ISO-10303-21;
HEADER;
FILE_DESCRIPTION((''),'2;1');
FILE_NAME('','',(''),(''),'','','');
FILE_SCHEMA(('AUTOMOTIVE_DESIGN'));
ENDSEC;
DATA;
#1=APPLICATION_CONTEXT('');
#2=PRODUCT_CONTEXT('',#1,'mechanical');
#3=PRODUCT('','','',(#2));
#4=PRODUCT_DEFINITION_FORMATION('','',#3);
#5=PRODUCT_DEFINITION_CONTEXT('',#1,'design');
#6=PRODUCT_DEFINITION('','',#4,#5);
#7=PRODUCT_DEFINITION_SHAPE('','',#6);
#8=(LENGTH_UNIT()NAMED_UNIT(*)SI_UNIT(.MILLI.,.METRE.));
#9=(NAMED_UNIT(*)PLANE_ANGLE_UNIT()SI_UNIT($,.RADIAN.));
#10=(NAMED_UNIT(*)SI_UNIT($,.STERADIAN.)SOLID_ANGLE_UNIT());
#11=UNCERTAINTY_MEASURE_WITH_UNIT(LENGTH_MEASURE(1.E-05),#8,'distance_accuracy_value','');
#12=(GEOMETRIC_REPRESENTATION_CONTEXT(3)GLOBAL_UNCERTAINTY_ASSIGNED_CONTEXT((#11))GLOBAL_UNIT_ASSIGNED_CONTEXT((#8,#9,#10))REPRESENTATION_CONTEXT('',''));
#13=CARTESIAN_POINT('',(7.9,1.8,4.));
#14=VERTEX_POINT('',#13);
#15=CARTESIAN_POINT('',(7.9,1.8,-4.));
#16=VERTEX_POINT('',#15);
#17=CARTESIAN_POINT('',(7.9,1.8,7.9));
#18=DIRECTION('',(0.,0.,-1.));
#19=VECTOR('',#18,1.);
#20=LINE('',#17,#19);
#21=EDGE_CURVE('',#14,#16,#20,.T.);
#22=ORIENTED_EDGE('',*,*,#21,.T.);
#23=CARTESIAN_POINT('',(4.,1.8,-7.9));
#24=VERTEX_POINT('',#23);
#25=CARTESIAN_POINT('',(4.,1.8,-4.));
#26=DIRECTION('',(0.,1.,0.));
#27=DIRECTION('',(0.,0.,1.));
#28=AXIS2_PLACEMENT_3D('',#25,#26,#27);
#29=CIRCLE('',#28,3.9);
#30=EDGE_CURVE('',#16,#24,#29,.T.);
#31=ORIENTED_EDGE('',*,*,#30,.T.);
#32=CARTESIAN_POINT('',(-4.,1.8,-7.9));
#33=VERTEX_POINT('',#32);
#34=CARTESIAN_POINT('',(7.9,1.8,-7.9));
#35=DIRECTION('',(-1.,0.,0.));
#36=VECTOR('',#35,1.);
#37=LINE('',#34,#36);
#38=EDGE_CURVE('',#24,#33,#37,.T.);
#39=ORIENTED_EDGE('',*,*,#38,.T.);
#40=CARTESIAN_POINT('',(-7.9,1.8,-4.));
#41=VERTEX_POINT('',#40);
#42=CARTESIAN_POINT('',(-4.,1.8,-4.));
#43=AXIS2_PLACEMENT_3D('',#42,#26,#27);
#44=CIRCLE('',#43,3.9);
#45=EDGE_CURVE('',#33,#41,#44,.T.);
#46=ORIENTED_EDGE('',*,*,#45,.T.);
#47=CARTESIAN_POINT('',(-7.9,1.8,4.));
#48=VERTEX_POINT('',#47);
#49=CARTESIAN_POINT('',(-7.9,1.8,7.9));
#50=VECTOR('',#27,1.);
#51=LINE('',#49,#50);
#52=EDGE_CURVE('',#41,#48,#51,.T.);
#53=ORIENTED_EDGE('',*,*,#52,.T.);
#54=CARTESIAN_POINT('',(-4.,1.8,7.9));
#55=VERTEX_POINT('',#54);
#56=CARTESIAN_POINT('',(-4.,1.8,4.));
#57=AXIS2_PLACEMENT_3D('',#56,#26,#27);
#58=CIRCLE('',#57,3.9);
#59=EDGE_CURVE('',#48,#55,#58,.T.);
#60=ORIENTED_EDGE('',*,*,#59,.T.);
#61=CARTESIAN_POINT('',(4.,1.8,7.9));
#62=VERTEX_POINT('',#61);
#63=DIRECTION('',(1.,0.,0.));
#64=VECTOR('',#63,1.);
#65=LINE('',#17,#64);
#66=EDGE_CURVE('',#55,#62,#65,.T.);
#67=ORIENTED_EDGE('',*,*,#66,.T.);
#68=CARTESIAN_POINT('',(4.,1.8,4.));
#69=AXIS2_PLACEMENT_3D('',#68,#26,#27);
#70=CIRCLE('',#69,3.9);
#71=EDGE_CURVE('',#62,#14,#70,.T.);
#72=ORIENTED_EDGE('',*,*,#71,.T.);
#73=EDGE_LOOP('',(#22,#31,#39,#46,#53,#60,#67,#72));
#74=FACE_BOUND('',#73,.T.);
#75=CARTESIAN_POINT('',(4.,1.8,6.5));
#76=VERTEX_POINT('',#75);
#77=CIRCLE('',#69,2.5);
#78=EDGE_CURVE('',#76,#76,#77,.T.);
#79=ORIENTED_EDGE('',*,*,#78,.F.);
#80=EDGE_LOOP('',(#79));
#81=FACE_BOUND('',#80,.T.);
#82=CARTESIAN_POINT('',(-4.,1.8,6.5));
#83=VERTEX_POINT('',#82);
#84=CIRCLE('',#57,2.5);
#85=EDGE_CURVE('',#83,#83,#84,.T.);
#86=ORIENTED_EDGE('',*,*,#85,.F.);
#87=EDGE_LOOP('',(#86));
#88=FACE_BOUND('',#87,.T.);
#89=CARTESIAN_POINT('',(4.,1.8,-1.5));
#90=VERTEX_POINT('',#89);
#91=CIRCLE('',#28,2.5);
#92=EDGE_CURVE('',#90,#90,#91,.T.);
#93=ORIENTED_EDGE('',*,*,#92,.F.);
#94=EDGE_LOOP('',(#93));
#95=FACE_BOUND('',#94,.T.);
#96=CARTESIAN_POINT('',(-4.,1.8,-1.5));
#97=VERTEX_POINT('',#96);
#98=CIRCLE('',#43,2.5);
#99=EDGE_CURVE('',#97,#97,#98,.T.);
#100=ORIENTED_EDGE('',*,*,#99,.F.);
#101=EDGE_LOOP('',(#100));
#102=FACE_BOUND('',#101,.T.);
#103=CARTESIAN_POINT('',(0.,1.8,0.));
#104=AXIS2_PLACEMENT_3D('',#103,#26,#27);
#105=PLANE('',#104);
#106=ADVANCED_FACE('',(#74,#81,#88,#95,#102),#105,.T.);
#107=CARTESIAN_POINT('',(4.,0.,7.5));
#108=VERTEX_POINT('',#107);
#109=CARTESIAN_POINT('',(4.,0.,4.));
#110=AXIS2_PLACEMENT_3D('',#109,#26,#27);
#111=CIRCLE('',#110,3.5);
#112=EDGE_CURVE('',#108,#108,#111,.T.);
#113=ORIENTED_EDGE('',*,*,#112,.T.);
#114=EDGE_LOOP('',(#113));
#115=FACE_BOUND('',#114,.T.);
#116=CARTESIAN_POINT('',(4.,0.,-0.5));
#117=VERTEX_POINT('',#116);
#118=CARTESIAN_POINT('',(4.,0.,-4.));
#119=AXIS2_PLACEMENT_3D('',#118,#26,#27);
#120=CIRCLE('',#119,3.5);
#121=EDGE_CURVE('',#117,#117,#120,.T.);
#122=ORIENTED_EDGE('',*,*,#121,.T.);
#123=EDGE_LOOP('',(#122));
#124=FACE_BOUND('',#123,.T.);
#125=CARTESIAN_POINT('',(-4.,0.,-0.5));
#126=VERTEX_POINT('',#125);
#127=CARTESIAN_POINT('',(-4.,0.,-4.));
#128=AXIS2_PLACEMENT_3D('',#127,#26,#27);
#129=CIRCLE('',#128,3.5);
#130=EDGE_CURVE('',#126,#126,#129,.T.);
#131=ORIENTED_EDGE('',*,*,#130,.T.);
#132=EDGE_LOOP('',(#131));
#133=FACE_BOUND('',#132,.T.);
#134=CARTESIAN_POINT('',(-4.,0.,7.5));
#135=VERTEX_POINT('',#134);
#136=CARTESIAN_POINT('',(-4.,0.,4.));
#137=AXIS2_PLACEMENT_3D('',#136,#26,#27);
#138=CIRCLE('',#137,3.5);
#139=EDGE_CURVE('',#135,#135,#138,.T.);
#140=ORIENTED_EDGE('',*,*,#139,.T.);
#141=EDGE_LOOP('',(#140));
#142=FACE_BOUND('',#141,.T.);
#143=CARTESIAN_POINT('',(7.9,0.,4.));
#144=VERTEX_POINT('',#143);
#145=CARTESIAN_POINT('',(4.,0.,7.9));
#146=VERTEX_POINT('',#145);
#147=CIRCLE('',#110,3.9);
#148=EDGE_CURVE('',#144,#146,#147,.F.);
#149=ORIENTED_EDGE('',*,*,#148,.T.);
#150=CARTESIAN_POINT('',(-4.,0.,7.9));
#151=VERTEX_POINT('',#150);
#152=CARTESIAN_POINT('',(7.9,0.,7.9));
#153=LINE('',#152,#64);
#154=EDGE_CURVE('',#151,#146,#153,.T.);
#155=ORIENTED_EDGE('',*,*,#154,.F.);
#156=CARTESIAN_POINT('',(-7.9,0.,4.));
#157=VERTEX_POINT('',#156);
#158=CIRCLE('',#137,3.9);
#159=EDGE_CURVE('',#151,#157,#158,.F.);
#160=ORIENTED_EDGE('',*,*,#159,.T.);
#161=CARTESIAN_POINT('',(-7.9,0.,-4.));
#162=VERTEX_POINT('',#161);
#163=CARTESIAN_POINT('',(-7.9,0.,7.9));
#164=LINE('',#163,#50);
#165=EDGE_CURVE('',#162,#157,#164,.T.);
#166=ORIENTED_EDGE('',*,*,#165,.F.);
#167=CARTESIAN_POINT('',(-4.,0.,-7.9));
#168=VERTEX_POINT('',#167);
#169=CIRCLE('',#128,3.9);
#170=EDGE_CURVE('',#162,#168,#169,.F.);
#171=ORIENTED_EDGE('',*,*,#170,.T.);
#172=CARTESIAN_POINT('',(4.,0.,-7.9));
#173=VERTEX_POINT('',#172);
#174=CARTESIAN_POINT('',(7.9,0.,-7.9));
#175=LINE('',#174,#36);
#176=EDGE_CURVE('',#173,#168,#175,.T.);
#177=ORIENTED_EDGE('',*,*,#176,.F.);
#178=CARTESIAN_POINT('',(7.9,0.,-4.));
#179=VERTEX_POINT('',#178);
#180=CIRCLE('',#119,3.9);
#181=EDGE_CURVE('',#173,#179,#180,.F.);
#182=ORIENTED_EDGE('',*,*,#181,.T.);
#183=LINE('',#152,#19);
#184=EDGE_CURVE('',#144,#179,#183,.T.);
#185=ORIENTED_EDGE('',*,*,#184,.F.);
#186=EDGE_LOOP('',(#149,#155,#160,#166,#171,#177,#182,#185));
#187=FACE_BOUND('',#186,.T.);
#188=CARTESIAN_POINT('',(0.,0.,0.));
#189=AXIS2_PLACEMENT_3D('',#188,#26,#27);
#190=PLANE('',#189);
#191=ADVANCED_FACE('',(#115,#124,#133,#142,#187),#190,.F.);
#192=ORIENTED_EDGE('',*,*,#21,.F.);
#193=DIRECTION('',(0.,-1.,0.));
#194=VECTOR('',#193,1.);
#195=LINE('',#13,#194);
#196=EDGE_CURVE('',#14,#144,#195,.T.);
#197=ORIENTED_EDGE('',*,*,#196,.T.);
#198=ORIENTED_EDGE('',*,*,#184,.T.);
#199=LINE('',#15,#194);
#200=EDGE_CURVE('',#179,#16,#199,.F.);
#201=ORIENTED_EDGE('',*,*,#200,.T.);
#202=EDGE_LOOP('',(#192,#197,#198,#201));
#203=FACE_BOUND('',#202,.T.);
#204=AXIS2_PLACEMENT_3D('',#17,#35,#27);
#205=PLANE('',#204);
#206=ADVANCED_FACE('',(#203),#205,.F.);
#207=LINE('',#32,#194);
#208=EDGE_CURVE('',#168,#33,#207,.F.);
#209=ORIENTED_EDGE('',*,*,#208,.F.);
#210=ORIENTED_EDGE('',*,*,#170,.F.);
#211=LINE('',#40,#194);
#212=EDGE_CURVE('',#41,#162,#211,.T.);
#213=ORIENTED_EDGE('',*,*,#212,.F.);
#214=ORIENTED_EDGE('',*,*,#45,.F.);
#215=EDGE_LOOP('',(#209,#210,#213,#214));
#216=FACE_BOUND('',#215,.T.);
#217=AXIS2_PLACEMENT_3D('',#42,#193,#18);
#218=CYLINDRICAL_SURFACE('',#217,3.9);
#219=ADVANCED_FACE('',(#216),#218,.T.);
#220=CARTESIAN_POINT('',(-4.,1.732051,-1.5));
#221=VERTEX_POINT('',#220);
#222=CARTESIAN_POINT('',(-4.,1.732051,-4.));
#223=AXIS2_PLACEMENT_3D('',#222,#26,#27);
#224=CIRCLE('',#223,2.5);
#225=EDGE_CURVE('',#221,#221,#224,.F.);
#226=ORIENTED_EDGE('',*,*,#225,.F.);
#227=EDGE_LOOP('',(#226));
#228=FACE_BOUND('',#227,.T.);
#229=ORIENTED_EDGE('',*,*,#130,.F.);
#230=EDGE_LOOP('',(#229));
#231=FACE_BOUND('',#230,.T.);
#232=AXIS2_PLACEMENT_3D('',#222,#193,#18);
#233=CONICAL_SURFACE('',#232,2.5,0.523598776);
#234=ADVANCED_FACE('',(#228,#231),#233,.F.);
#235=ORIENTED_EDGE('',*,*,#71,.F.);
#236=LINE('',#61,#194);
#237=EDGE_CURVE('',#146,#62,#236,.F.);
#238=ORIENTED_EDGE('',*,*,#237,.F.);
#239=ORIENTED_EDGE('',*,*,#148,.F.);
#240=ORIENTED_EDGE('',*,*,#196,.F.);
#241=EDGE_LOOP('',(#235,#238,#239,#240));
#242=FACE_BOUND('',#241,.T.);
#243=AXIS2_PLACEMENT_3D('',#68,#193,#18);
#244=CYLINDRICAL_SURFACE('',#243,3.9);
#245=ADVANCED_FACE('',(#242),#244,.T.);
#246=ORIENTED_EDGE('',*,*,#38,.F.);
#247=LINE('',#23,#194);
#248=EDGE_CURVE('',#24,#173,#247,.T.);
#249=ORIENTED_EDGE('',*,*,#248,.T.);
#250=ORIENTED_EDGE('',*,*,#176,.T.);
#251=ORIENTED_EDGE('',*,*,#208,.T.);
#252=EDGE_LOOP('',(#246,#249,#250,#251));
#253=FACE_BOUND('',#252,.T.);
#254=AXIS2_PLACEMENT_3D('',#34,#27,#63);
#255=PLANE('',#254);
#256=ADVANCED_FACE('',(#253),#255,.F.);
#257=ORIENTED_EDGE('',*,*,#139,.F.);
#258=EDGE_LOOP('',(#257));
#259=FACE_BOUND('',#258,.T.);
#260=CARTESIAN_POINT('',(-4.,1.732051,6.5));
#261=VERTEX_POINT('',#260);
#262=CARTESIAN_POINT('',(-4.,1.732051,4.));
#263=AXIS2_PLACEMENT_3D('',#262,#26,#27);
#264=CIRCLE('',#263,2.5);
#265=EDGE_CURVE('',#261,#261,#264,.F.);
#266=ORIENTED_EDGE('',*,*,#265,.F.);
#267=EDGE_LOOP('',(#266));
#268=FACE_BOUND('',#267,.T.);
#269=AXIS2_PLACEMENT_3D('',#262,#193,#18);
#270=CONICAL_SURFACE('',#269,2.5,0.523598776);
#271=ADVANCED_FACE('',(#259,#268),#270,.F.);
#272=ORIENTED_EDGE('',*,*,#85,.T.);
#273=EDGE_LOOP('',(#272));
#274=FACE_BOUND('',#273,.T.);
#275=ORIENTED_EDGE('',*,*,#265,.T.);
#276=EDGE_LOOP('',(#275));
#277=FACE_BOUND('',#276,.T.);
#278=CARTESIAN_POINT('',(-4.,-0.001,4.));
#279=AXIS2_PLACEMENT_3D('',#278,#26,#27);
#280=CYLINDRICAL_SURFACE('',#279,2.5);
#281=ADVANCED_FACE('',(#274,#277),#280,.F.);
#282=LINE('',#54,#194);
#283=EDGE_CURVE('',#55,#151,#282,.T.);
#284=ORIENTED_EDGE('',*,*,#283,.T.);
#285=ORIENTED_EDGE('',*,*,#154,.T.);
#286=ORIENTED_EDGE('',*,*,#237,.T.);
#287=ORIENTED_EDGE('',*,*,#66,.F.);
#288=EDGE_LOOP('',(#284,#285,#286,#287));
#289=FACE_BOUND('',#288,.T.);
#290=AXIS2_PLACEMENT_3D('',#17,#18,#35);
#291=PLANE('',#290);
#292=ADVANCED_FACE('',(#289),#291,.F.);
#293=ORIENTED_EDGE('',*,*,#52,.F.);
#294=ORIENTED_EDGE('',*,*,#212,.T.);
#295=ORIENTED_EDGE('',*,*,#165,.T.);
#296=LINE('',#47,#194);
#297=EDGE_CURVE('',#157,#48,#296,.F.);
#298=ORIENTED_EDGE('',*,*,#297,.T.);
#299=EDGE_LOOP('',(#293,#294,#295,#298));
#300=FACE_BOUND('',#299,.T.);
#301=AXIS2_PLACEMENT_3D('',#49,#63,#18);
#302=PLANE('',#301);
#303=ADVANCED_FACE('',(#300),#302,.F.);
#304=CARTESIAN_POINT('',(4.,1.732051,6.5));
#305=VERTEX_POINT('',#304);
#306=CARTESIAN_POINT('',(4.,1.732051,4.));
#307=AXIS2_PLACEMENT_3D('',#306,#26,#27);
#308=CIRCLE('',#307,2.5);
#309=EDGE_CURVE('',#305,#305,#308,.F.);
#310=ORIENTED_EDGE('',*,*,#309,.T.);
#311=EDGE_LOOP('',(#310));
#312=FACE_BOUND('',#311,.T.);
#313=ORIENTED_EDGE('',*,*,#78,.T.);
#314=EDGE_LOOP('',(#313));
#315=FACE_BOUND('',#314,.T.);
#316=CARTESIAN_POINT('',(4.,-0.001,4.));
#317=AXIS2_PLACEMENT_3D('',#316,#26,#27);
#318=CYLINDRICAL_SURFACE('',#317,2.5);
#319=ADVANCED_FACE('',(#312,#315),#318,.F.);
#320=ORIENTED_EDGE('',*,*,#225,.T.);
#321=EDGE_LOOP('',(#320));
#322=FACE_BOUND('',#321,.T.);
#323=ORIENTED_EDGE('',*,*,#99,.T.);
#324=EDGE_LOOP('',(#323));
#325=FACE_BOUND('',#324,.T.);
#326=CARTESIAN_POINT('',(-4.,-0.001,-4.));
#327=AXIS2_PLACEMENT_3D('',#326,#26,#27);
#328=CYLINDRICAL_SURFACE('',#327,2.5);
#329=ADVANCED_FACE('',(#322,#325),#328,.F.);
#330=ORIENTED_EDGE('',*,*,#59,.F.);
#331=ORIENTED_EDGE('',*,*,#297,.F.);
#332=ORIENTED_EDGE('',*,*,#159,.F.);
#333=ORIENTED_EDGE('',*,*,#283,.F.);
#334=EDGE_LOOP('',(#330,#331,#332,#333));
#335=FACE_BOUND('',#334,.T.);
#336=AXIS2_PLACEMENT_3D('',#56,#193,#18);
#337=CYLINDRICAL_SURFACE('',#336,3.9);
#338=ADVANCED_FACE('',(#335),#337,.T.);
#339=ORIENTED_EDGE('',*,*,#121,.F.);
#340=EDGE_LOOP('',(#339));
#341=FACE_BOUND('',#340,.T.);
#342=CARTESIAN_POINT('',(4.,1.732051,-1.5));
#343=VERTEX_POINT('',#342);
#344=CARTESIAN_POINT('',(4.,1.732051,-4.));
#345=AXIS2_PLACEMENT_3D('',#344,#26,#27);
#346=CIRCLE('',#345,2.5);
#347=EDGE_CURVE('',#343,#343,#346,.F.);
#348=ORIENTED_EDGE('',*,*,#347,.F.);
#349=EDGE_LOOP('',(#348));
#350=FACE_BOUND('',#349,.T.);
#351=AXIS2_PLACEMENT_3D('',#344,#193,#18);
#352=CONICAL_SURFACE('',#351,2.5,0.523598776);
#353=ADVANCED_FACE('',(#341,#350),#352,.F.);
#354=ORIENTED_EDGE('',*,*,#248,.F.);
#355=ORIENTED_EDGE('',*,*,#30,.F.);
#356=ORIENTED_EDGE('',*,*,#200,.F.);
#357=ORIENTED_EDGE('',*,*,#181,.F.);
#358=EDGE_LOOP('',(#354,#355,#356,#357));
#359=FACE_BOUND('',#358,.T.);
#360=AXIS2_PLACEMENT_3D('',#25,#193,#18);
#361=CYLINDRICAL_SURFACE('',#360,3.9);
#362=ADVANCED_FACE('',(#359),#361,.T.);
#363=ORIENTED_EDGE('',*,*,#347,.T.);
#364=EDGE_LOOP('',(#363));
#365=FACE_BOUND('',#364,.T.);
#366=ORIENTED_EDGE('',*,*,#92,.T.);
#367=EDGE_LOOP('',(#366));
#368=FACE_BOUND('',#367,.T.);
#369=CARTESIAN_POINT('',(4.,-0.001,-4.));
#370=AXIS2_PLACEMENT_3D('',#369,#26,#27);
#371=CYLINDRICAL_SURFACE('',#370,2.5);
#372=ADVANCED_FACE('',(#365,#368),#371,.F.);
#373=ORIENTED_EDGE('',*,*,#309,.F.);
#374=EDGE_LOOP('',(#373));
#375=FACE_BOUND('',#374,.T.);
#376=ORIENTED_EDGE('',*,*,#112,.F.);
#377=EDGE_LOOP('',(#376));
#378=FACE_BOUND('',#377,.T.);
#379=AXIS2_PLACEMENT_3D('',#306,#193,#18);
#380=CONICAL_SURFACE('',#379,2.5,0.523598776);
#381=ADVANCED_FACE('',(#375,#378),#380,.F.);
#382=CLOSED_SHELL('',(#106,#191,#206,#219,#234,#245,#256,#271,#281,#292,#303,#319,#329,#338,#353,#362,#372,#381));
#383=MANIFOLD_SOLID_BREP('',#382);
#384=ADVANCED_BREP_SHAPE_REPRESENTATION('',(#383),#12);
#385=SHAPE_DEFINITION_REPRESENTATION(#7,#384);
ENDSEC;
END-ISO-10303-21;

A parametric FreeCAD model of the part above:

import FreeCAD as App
import Part
import Sketcher
from FreeCAD import Vector


def edges_at(feature, points):
    """Names of the edges that pass closest to the given points."""
    edges = feature.Shape.Edges
    near = lambda p: min(range(len(edges)), key=lambda i: edges[i].distToShape(Part.Vertex(*p))[0])
    return sorted({f"Edge{near(p) + 1}" for p in points})


def add_polygon(sketch, points):
    """Adds a closed chain of lines whose ends are joined by coincident constraints."""
    first, n = sketch.GeometryCount, len(points)
    for a, b in zip(points, points[1:] + points[:1]):
        sketch.addGeometry(Part.LineSegment(App.Vector(*a, 0), App.Vector(*b, 0)), False)
    for i in range(n):
        sketch.addConstraint(Sketcher.Constraint("Coincident", first + i, 2, first + (i + 1) % n, 1))

doc = App.newDocument("Part")
body = doc.addObject("PartDesign::Body", "Body")

# Sketch on XZ plane
sketch1 = body.newObject("Sketcher::SketchObject", "Sketch")
sketch1.AttachmentSupport = (doc.getObject("XZ_Plane"), [""])
sketch1.MapMode = "FlatFace"
add_polygon(sketch1, [(-8, -8), (-8, 8), (8, 8), (8, -8)])  # lines 0-3
sketch1.addConstraint([
    Sketcher.Constraint("Vertical", 0),
    Sketcher.Constraint("Horizontal", 1),
    Sketcher.Constraint("Vertical", 2),
    Sketcher.Constraint("Horizontal", 3),
    Sketcher.Constraint("Symmetric", 0, 2, 2, 2, -1, 1),
    Sketcher.Constraint("Equal", 3, 0),
    Sketcher.Constraint("DistanceX", 1, 1, 1, 2, 15.8),
])
pad1 = body.newObject("PartDesign::Pad", "Pad")
pad1.Profile = sketch1
pad1.Length = 1.8
pad1.Reversed = True

# Sketch on XZ plane
sketch2 = body.newObject("Sketcher::SketchObject", "Sketch001")
sketch2.AttachmentSupport = (doc.getObject("XZ_Plane"), [""])
sketch2.MapMode = "FlatFace"
sketch2.AttachmentOffset = App.Placement(Vector(0, 0, -1.8), App.Rotation())
sketch2.addGeometry(Part.Circle(Vector(-4, -4, 0), Vector(0, 0, 1), 2.5), False)
sketch2.addConstraint([
    Sketcher.Constraint("Diameter", 0, 5.0),
    Sketcher.Constraint("DistanceX", 0, 3, -1, 1, 4.0),
    Sketcher.Constraint("DistanceY", 0, 3, -1, 1, 4.0),
])
pocket1 = body.newObject("PartDesign::Pocket", "Pocket")
pocket1.Profile = sketch2
pocket1.Type = "UpToFirst"
pocket1.Reversed = True

# Sketch on XZ plane
sketch3 = body.newObject("Sketcher::SketchObject", "Sketch002")
sketch3.AttachmentSupport = (doc.getObject("XZ_Plane"), [""])
sketch3.MapMode = "FlatFace"
sketch3.AttachmentOffset = App.Placement(Vector(0, 0, -1.8), App.Rotation())
sketch3.addGeometry(Part.Circle(Vector(4, -4, 0), Vector(0, 0, 1), 2.5), False)
sketch3.addConstraint([
    Sketcher.Constraint("Diameter", 0, 5.0),
    Sketcher.Constraint("DistanceX", -1, 1, 0, 3, 4.0),
    Sketcher.Constraint("DistanceY", 0, 3, -1, 1, 4.0),
])
pocket2 = body.newObject("PartDesign::Pocket", "Pocket001")
pocket2.Profile = sketch3
pocket2.Type = "UpToFirst"
pocket2.Reversed = True

# Sketch on XZ plane
sketch4 = body.newObject("Sketcher::SketchObject", "Sketch003")
sketch4.AttachmentSupport = (doc.getObject("XZ_Plane"), [""])
sketch4.MapMode = "FlatFace"
sketch4.AttachmentOffset = App.Placement(Vector(0, 0, -1.8), App.Rotation())
sketch4.addGeometry(Part.Circle(Vector(4, 4, 0), Vector(0, 0, 1), 2.5), False)
sketch4.addConstraint([
    Sketcher.Constraint("Diameter", 0, 5.0),
    Sketcher.Constraint("DistanceX", -1, 1, 0, 3, 4.0),
    Sketcher.Constraint("DistanceY", -1, 1, 0, 3, 4.0),
])
pocket3 = body.newObject("PartDesign::Pocket", "Pocket002")
pocket3.Profile = sketch4
pocket3.Type = "UpToFirst"
pocket3.Reversed = True

# Sketch on XZ plane
sketch5 = body.newObject("Sketcher::SketchObject", "Sketch004")
sketch5.AttachmentSupport = (doc.getObject("XZ_Plane"), [""])
sketch5.MapMode = "FlatFace"
sketch5.AttachmentOffset = App.Placement(Vector(0, 0, -1.8), App.Rotation())
sketch5.addGeometry(Part.Circle(Vector(-4, 4, 0), Vector(0, 0, 1), 2.5), False)
sketch5.addConstraint([
    Sketcher.Constraint("Diameter", 0, 5.0),
    Sketcher.Constraint("DistanceX", 0, 3, -1, 1, 4.0),
    Sketcher.Constraint("DistanceY", -1, 1, 0, 3, 4.0),
])
pocket4 = body.newObject("PartDesign::Pocket", "Pocket003")
pocket4.Profile = sketch5
pocket4.Type = "UpToFirst"
pocket4.Reversed = True
doc.recompute()

fillet = body.newObject("PartDesign::Fillet", "Fillet")
fillet.Base = (pocket4, edges_at(pocket4, [
    (-7.9, 0.9, -7.9),
    (7.9, 0.9, -7.9),
    (7.9, 0.9, 7.9),
    (-7.9, 0.9, 7.9),
]))
fillet.Radius = 3.9
doc.recompute()

chamfer = body.newObject("PartDesign::Chamfer", "Chamfer")
chamfer.Base = (fillet, edges_at(fillet, [
    (-4, 0, 1.5),
    (4, 0, 1.5),
    (4, 0, -6.5),
    (-4, 0, -6.5),
]))
chamfer.ChamferType = "Two distances"
chamfer.Size = 1
chamfer.Size2 = 1.732051

doc.recompute()
